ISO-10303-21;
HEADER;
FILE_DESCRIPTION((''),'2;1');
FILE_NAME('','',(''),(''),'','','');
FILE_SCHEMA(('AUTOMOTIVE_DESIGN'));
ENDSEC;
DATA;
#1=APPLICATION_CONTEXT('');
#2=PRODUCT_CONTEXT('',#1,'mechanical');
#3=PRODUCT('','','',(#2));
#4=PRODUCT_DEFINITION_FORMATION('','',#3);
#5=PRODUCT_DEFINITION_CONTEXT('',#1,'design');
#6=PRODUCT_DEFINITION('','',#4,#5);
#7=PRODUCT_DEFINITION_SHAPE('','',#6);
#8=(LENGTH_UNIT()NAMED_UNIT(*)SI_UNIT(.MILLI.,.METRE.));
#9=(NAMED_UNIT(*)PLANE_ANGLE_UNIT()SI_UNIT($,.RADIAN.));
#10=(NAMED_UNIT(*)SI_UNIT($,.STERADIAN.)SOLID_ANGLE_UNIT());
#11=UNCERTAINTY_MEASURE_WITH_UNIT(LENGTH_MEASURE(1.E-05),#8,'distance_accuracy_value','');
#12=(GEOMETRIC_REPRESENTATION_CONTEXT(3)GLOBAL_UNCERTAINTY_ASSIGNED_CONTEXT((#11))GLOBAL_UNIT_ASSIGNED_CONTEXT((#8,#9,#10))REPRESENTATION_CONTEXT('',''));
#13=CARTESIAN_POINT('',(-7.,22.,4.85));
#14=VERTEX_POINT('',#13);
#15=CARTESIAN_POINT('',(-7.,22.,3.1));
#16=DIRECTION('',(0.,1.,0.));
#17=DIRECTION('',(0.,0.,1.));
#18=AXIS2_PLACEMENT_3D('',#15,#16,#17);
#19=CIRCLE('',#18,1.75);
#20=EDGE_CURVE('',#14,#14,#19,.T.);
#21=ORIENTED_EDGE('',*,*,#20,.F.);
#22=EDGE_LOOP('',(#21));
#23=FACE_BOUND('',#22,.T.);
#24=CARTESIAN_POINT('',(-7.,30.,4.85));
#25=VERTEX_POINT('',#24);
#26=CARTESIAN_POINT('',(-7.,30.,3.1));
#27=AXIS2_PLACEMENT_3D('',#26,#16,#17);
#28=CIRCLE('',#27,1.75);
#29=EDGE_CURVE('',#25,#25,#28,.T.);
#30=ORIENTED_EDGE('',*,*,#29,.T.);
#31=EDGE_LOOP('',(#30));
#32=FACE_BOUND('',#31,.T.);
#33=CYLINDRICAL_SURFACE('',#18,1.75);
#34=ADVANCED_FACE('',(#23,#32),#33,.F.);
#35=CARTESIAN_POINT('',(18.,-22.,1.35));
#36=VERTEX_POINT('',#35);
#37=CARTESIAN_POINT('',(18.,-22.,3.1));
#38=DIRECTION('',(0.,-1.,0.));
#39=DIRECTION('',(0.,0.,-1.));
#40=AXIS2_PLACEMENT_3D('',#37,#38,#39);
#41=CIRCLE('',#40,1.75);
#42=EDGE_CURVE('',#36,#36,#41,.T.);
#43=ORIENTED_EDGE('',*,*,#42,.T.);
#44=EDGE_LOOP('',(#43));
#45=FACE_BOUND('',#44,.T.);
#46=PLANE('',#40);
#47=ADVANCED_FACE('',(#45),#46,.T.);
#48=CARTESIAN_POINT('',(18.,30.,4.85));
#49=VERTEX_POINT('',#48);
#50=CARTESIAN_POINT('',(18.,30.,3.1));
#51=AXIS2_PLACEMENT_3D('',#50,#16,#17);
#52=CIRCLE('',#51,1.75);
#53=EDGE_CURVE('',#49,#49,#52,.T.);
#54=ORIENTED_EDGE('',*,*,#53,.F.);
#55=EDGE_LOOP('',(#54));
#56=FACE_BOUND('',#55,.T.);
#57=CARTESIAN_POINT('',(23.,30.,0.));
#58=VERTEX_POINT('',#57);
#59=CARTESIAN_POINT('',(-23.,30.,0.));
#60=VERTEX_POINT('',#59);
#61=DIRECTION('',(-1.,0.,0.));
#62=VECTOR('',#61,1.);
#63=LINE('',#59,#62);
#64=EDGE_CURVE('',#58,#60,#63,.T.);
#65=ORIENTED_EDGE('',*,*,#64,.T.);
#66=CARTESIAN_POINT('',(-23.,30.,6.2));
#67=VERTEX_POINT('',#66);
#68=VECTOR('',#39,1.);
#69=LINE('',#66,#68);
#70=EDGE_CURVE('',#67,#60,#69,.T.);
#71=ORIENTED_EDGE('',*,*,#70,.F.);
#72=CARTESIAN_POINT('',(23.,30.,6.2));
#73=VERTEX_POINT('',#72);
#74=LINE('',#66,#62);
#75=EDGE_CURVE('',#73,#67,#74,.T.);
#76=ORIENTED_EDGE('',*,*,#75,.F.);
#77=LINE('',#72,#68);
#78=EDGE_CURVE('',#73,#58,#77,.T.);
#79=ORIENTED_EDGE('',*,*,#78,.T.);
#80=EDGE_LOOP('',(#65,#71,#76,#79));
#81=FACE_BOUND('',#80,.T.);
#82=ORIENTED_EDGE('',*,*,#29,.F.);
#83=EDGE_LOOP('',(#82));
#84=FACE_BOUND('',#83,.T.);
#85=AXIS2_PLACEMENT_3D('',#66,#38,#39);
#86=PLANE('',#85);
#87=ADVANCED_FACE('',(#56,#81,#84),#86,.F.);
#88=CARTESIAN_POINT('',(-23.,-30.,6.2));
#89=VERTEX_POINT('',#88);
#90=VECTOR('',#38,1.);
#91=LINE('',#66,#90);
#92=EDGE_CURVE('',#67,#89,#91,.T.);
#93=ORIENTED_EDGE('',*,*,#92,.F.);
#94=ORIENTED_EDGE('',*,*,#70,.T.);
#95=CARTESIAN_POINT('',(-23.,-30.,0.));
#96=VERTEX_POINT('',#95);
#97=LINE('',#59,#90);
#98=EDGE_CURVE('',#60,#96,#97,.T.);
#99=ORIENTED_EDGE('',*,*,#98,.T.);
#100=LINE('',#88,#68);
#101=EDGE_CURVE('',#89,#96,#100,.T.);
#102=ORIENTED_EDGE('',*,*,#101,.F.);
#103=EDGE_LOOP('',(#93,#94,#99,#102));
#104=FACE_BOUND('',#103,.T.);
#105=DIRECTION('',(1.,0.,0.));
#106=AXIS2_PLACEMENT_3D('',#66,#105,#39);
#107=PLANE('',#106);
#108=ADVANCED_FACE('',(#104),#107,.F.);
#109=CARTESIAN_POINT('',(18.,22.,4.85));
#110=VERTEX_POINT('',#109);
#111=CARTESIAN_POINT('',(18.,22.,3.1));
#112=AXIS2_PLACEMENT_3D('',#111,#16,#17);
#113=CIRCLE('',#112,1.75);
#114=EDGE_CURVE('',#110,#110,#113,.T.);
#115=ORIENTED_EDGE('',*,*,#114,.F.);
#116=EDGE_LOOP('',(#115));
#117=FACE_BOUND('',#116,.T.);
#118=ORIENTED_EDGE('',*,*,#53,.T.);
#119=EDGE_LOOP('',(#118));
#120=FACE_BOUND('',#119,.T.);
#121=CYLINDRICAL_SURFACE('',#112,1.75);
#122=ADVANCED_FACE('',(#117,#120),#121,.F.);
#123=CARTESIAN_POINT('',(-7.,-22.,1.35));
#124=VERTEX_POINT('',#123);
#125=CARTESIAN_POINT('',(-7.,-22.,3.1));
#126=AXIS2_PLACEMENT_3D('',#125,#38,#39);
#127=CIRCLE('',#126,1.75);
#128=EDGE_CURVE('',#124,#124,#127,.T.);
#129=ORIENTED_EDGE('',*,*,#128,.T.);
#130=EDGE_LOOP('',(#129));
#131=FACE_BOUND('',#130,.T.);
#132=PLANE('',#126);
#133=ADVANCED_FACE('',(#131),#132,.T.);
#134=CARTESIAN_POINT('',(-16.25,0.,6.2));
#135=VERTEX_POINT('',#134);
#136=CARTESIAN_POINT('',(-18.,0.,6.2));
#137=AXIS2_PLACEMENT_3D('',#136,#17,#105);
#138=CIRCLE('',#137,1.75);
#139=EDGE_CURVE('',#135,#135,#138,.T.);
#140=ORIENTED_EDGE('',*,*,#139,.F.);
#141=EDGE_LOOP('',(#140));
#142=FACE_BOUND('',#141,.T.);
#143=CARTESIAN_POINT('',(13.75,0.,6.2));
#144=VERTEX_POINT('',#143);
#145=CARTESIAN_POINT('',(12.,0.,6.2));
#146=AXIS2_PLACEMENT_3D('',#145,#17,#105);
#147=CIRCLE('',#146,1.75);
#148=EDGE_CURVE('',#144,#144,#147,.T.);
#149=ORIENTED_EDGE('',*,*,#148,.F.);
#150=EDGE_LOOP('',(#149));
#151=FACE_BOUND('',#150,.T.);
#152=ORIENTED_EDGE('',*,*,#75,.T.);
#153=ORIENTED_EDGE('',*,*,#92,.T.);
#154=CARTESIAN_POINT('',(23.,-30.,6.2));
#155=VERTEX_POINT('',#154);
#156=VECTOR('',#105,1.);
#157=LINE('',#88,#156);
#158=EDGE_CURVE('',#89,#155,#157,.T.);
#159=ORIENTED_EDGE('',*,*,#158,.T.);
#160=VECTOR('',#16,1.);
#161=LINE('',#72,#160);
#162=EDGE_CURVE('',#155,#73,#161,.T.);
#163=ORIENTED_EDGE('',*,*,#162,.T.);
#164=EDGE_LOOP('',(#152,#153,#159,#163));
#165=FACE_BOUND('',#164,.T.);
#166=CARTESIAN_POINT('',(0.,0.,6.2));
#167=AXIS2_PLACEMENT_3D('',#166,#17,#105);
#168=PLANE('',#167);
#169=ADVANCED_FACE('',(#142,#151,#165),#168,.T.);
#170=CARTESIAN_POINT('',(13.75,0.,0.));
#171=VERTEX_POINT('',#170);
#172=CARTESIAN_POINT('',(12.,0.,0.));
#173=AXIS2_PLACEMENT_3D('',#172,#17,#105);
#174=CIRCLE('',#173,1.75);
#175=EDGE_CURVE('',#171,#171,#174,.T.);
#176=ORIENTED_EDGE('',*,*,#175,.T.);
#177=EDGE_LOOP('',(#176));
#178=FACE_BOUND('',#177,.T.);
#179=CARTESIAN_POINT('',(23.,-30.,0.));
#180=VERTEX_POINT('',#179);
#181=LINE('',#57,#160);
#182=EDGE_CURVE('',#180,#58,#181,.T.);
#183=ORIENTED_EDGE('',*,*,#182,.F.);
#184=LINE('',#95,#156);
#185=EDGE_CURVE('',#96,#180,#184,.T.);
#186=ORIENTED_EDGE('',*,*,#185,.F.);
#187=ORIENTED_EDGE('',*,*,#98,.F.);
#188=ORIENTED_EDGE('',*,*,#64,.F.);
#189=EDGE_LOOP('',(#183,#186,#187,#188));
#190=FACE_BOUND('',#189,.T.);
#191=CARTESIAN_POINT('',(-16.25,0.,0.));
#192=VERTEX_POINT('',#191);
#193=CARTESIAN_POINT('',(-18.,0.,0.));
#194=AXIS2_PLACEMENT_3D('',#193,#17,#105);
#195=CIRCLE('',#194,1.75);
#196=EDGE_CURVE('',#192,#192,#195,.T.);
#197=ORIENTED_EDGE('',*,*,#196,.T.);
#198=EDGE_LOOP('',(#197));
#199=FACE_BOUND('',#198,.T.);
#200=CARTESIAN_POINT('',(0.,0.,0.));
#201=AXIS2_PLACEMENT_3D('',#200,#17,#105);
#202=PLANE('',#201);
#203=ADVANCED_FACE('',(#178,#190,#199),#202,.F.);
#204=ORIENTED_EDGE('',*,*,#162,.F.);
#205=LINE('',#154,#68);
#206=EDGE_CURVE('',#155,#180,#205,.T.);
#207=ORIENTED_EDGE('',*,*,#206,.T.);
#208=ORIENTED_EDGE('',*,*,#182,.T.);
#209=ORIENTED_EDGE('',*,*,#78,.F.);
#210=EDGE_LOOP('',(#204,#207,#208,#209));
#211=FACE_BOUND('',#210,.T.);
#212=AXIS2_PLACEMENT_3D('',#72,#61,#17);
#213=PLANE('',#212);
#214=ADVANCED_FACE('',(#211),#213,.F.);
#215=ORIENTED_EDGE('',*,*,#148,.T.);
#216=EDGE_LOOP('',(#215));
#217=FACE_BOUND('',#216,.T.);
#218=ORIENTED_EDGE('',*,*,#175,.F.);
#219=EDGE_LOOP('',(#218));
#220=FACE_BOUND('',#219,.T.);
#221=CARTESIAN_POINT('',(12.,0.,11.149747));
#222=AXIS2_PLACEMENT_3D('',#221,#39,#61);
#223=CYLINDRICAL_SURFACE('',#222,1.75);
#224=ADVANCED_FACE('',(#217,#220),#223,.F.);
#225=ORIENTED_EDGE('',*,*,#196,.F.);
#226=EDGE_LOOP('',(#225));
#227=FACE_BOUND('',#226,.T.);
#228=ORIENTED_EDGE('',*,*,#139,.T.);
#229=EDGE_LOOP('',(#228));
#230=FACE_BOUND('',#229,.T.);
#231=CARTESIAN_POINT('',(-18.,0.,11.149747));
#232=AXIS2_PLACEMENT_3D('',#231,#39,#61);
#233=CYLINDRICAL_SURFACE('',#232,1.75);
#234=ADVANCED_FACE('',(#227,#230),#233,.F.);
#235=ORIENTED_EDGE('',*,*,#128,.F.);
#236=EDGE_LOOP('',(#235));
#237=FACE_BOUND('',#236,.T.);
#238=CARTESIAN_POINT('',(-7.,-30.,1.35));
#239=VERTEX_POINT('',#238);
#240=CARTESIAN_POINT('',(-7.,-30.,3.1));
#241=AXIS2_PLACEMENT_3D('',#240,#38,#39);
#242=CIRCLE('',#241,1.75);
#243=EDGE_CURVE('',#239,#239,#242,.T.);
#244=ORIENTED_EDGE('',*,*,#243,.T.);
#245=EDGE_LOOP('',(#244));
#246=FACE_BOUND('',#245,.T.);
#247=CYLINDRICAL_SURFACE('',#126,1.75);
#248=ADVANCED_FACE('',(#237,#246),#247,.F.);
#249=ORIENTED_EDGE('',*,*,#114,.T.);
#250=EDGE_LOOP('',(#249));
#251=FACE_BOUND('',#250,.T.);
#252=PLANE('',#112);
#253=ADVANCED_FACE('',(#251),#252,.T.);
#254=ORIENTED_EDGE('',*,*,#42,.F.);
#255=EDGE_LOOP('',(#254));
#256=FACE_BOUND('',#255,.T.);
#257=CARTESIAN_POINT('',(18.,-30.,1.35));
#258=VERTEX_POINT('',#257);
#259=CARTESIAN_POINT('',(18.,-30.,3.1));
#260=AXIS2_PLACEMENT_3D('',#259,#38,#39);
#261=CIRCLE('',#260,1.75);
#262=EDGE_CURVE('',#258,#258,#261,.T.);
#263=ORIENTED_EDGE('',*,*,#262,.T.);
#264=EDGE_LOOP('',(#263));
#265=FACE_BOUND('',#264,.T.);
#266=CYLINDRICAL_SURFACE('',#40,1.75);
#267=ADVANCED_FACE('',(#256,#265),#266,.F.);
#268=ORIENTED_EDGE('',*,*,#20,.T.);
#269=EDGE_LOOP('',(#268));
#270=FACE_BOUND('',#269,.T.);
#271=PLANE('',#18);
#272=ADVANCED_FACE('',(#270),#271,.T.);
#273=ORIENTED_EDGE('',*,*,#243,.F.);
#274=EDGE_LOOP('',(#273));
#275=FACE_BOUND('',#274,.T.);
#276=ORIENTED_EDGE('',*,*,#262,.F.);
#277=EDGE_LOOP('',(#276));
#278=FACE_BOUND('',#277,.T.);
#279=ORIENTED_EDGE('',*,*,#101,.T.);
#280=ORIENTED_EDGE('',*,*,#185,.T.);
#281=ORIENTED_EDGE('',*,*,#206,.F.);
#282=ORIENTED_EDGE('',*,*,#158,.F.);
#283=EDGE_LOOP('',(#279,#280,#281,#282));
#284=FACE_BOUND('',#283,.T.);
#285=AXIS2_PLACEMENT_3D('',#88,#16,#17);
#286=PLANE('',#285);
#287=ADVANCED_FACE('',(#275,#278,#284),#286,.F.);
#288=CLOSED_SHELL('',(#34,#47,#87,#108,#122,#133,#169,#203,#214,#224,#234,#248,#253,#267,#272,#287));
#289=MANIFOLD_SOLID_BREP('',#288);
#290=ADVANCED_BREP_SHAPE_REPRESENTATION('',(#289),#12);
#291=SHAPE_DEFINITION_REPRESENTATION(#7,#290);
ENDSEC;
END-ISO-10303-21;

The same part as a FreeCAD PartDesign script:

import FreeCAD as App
import Part
import Sketcher

V = App.Vector
Q = App.Units.Quantity


def add_polygon(sketch, points):
    """Adds a closed chain of lines whose ends are joined by coincident constraints."""
    first, n = sketch.GeometryCount, len(points)
    for a, b in zip(points, points[1:] + points[:1]):
        sketch.addGeometry(Part.LineSegment(App.Vector(*a, 0), App.Vector(*b, 0)), False)
    for i in range(n):
        sketch.addConstraint(Sketcher.Constraint("Coincident", first + i, 2, first + (i + 1) % n, 1))

doc = App.newDocument("Part")
body = doc.addObject("PartDesign::Body", "Body")

# Sketch on XY plane
sketch1 = doc.addObject("Sketcher::SketchObject", "Sketch")
body.addObject(sketch1)
sketch1.AttachmentSupport = (doc.XY_Plane, [""])
sketch1.MapMode = "FlatFace"
add_polygon(sketch1, [(-23, 30), (-23, -30), (23, -30), (23, 30)])  # lines 0-3
sketch1.addConstraint([
    Sketcher.Constraint("Vertical", 0),
    Sketcher.Constraint("Horizontal", 1),
    Sketcher.Constraint("Vertical", 2),
    Sketcher.Constraint("Horizontal", 3),
    Sketcher.Constraint("Symmetric", 0, 2, 2, 2, -1, 1),
    Sketcher.Constraint("DistanceX", 1, 1, 1, 2, Q("46 mm")),
    Sketcher.Constraint("DistanceY", 0, 2, 0, 1, Q("60 mm")),
])
pad1 = doc.addObject("PartDesign::Pad", "Pad")
body.addObject(pad1)
pad1.Profile = sketch1
pad1.Length = 6.2

# Sketch on XY plane
sketch2 = doc.addObject("Sketcher::SketchObject", "Sketch001")
body.addObject(sketch2)
sketch2.AttachmentSupport = (doc.XY_Plane, [""])
sketch2.MapMode = "FlatFace"
sketch2.addGeometry([
    Part.Circle(V(-18, 0, 0), V(0, 0, 1), 1.8),
    Part.Circle(V(12, 0, 0), V(0, 0, 1), 1.8),
], False)
sketch2.addConstraint([
    Sketcher.Constraint("Equal", 0, 1),
    Sketcher.Constraint("PointOnObject", 0, 3, -1),
    Sketcher.Constraint("PointOnObject", 1, 3, -1),
    Sketcher.Constraint("Diameter", 0, Q("3.5 mm")),
    Sketcher.Constraint("DistanceX", 0, 3, -1, 1, Q("18 mm")),
    Sketcher.Constraint("DistanceX", -1, 1, 1, 3, Q("12 mm")),
])
pocket1 = doc.addObject("PartDesign::Pocket", "Pocket")
body.addObject(pocket1)
pocket1.Profile = sketch2
pocket1.Length = 6.2
pocket1.Reversed = True

# Sketch on XZ plane
sketch3 = doc.addObject("Sketcher::SketchObject", "Sketch002")
body.addObject(sketch3)
sketch3.AttachmentSupport = (doc.XZ_Plane, [""])
sketch3.MapMode = "FlatFace"
sketch3.AttachmentOffset = App.Placement(V(0, 0, 30), App.Rotation())
sketch3.addGeometry([
    Part.Circle(V(-7, 3.1, 0), V(0, 0, 1), 1.8),
    Part.Circle(V(18, 3.1, 0), V(0, 0, 1), 1.8),
], False)
sketch3.addConstraint([
    Sketcher.Constraint("Equal", 0, 1),
    Sketcher.Constraint("Horizontal", 0, 3, 1, 3),
    Sketcher.Constraint("Diameter", 0, Q("3.5 mm")),
    Sketcher.Constraint("DistanceX", 0, 3, -1, 1, Q("7 mm")),
    Sketcher.Constraint("DistanceX", -1, 1, 1, 3, Q("18 mm")),
    Sketcher.Constraint("DistanceY", -1, 1, 0, 3, Q("3.1 mm")),
])
pocket2 = doc.addObject("PartDesign::Pocket", "Pocket001")
body.addObject(pocket2)
pocket2.Profile = sketch3
pocket2.Length = 8

# Sketch on XZ plane
sketch4 = doc.addObject("Sketcher::SketchObject", "Sketch003")
body.addObject(sketch4)
sketch4.AttachmentSupport = (doc.XZ_Plane, [""])
sketch4.MapMode = "FlatFace"
sketch4.AttachmentOffset = App.Placement(V(0, 0, -22), App.Rotation())
sketch4.addGeometry([
    Part.Circle(V(18, 3.1, 0), V(0, 0, 1), 1.8),
    Part.Circle(V(-7, 3.1, 0), V(0, 0, 1), 1.8),
], False)
sketch4.addConstraint([
    Sketcher.Constraint("Equal", 0, 1),
    Sketcher.Constraint("Horizontal", 0, 3, 1, 3),
    Sketcher.Constraint("Diameter", 0, Q("3.5 mm")),
    Sketcher.Constraint("DistanceX", -1, 1, 0, 3, Q("18 mm")),
    Sketcher.Constraint("DistanceX", 1, 3, -1, 1, Q("7 mm")),
    Sketcher.Constraint("DistanceY", -1, 1, 0, 3, Q("3.1 mm")),
])
pocket3 = doc.addObject("PartDesign::Pocket", "Pocket002")
body.addObject(pocket3)
pocket3.Profile = sketch4
pocket3.Length = 8

doc.recompute()
